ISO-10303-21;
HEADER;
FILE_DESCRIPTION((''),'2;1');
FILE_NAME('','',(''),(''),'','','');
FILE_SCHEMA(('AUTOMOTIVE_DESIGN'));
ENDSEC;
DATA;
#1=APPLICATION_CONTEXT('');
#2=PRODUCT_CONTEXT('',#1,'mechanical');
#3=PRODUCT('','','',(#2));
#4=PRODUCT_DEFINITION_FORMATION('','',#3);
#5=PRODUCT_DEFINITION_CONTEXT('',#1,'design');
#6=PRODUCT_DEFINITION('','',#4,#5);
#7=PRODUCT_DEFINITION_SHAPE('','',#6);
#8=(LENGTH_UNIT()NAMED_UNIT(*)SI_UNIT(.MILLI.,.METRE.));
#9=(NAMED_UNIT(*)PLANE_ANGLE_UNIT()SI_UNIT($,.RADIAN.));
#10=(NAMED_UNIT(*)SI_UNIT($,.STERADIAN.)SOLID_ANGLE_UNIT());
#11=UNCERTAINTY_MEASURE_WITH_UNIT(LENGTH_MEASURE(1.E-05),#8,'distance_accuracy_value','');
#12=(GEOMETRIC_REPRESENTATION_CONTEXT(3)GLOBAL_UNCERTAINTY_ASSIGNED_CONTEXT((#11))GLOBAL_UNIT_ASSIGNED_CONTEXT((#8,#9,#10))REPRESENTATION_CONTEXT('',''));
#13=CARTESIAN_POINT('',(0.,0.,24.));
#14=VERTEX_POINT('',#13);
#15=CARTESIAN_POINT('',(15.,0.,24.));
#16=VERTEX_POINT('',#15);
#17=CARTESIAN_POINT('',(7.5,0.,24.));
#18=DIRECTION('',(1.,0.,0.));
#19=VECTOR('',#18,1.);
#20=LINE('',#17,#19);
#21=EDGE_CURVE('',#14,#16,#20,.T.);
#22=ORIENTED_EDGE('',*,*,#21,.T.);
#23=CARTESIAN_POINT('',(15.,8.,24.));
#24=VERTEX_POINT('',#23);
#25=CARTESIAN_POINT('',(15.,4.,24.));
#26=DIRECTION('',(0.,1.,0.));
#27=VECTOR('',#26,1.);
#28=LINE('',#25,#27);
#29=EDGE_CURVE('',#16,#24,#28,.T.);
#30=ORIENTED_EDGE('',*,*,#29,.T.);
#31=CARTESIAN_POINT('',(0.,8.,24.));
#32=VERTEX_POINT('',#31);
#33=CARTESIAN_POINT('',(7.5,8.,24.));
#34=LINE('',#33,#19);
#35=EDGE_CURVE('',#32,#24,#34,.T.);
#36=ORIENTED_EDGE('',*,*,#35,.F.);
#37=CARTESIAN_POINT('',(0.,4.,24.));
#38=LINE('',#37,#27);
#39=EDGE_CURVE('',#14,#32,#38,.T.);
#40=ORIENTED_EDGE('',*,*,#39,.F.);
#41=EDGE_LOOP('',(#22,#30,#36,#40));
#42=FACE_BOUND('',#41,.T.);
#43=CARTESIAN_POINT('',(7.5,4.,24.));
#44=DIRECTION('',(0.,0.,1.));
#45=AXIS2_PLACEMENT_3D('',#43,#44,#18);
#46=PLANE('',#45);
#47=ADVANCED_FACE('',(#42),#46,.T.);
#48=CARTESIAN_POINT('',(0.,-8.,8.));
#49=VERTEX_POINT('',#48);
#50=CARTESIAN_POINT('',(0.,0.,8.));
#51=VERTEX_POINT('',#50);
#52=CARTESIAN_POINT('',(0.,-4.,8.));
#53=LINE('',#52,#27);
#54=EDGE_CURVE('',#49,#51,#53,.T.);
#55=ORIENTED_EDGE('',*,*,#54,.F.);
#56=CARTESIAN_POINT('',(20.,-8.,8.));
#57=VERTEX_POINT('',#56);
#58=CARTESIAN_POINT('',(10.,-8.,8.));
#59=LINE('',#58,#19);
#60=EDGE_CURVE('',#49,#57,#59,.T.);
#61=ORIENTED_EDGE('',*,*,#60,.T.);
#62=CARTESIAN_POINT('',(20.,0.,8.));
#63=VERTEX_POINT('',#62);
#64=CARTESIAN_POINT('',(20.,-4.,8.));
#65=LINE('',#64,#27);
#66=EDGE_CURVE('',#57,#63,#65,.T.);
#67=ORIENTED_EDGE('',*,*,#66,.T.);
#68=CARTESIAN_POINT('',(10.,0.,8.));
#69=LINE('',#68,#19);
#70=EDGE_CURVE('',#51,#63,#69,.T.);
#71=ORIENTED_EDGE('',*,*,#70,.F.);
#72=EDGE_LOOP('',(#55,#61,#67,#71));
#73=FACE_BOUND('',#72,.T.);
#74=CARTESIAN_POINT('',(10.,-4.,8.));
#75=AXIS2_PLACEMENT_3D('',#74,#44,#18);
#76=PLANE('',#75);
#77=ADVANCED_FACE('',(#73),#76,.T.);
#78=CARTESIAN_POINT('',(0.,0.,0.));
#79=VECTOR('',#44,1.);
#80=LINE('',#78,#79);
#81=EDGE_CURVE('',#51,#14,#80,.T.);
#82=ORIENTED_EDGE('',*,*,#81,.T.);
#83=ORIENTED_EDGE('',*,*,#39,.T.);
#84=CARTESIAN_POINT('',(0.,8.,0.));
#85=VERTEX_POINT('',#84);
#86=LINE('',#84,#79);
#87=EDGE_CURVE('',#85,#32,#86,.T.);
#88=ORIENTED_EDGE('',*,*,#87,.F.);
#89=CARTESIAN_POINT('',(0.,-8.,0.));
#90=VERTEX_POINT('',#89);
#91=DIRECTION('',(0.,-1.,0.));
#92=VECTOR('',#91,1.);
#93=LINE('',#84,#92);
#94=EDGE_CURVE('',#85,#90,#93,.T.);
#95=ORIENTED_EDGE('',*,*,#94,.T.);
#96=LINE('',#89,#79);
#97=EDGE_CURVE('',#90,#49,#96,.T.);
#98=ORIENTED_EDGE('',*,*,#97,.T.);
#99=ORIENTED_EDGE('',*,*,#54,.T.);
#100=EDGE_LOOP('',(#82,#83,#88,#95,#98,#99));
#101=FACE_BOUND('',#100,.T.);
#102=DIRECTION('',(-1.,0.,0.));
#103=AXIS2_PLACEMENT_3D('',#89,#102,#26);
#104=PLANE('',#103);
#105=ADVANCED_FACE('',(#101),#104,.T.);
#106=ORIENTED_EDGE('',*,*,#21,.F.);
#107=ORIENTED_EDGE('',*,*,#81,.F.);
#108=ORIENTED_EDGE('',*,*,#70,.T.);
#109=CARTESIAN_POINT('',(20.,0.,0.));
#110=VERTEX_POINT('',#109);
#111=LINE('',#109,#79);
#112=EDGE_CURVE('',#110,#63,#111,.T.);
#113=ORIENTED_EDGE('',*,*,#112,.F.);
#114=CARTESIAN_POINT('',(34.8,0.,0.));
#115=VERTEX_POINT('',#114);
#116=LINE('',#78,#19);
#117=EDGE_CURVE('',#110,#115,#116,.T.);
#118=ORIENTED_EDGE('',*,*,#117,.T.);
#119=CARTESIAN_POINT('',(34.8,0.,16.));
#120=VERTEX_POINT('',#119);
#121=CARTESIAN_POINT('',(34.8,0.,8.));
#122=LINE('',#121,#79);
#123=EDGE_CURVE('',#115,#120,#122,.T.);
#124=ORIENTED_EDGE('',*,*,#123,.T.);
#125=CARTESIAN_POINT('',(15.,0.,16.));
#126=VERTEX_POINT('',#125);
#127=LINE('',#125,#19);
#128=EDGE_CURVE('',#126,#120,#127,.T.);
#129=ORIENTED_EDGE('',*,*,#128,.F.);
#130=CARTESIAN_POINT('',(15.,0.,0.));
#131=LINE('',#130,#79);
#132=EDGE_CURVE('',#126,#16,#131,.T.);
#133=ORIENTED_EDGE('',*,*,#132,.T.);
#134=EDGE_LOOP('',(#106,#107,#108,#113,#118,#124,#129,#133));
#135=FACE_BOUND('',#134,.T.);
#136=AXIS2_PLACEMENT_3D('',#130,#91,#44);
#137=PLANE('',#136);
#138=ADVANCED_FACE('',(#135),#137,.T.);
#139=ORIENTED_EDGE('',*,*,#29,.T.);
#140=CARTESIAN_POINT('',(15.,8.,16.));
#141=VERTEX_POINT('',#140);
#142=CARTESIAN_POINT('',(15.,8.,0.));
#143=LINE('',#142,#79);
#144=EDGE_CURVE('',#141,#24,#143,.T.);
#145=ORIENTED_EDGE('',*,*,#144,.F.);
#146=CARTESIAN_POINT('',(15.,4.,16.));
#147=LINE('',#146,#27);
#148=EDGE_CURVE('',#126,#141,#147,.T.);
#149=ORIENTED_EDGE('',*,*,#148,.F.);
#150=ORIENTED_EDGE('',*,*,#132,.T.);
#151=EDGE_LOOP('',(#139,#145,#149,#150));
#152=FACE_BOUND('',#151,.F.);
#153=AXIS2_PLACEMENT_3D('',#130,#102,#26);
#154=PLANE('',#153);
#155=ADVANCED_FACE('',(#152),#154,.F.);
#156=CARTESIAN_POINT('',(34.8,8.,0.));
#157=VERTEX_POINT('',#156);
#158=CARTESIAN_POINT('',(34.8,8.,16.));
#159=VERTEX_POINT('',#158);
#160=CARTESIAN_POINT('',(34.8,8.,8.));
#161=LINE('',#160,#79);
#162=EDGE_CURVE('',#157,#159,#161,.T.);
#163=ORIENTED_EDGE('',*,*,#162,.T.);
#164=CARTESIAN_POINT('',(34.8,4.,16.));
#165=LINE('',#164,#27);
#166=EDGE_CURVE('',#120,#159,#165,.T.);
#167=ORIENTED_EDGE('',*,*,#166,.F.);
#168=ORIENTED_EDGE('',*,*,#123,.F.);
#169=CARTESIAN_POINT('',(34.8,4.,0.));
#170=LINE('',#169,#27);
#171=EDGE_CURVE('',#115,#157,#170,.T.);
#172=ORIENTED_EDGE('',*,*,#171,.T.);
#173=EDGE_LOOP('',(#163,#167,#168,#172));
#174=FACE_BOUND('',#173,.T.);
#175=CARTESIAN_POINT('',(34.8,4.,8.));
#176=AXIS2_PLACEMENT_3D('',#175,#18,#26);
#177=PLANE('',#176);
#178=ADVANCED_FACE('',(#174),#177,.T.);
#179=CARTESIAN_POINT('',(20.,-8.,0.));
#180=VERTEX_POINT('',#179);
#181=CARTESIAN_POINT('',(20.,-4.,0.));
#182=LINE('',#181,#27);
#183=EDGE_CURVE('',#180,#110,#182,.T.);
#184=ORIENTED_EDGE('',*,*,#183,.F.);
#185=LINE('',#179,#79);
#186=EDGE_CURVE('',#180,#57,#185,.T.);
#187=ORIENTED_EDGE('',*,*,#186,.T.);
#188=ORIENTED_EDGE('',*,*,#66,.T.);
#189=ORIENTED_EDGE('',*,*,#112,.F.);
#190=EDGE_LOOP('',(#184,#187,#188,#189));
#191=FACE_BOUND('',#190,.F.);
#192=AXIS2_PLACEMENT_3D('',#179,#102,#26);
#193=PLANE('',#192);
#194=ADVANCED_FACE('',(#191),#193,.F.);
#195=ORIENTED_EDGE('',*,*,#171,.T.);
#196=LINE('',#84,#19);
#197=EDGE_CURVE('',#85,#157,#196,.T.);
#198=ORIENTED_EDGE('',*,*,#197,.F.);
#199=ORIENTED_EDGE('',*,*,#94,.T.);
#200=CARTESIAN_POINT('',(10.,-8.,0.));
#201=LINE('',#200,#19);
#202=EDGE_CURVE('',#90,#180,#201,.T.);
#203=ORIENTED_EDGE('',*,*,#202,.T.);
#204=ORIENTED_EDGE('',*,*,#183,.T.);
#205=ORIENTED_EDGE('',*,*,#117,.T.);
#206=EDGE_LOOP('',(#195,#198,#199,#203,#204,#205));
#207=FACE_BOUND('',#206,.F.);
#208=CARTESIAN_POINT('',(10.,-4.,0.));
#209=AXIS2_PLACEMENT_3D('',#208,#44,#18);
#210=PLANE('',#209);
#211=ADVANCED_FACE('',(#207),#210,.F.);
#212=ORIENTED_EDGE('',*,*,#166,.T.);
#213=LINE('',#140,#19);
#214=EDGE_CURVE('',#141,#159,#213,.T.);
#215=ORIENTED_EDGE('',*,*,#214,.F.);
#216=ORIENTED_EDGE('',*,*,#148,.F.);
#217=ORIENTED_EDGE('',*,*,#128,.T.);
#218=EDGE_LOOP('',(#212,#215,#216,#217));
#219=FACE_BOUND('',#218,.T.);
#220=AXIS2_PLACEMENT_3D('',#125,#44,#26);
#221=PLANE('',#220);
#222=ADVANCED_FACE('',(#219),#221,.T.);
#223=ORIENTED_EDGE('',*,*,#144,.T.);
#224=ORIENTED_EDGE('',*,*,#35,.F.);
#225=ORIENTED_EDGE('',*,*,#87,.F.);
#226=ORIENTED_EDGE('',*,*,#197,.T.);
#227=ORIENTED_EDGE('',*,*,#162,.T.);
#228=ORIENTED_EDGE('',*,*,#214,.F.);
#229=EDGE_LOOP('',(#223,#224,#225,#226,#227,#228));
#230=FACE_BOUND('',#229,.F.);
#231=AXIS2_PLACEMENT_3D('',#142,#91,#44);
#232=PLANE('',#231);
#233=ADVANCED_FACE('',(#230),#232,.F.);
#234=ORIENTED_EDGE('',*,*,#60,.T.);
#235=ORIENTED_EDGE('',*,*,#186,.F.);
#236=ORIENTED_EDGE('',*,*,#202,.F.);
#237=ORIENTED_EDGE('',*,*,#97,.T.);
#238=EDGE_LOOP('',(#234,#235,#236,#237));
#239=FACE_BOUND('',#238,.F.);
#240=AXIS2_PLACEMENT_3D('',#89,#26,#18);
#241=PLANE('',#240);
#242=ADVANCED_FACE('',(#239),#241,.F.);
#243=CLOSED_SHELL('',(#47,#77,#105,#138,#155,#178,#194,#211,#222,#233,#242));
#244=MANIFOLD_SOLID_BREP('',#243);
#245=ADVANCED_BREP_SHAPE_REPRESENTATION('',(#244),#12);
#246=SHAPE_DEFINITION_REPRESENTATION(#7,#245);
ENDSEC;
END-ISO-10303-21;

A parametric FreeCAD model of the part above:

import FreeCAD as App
import Part
import Sketcher

V = App.Vector
Q = App.Units.Quantity


def add_polygon(sketch, points):
    """Adds a closed chain of lines whose ends are joined by coincident constraints."""
    first, n = sketch.GeometryCount, len(points)
    for a, b in zip(points, points[1:] + points[:1]):
        sketch.addGeometry(Part.LineSegment(App.Vector(*a, 0), App.Vector(*b, 0)), False)
    for i in range(n):
        sketch.addConstraint(Sketcher.Constraint("Coincident", first + i, 2, first + (i + 1) % n, 1))

doc = App.newDocument("Part")
body = doc.addObject("PartDesign::Body", "Body")

sketch1 = body.newObject("Sketcher::SketchObject", "Sketch")
sketch1.AttachmentSupport = (doc.getObject("XY_Plane"), [""])
sketch1.MapMode = "FlatFace"
add_polygon(sketch1, [(0, 8), (0, 0), (15, 0), (15, 8)])
sketch1.addConstraint(Sketcher.Constraint("Vertical", 0))
sketch1.addConstraint(Sketcher.Constraint("Horizontal", 1))
sketch1.addConstraint(Sketcher.Constraint("Vertical", 2))
sketch1.addConstraint(Sketcher.Constraint("Horizontal", 3))
sketch1.addConstraint(Sketcher.Constraint("Coincident", 0, 2, -1, 1))
sketch1.addConstraint(Sketcher.Constraint("DistanceX", 1, 1, 1, 2, Q("15 mm")))
sketch1.addConstraint(Sketcher.Constraint("DistanceY", 0, 2, 0, 1, Q("8 mm")))
pad1 = body.newObject("PartDesign::Pad", "Pad")
pad1.Profile = sketch1
pad1.Length = 24

sketch2 = body.newObject("Sketcher::SketchObject", "Sketch001")
sketch2.AttachmentSupport = (doc.getObject("YZ_Plane"), [""])
sketch2.MapMode = "FlatFace"
sketch2.AttachmentOffset = App.Placement(V(0, 0, 15), App.Rotation())
add_polygon(sketch2, [(0, 16), (0, 0), (8, 0), (8, 16)])
sketch2.addConstraint(Sketcher.Constraint("Vertical", 0))
sketch2.addConstraint(Sketcher.Constraint("Horizontal", 1))
sketch2.addConstraint(Sketcher.Constraint("Vertical", 2))
sketch2.addConstraint(Sketcher.Constraint("Horizontal", 3))
sketch2.addConstraint(Sketcher.Constraint("Coincident", 0, 2, -1, 1))
sketch2.addConstraint(Sketcher.Constraint("DistanceX", 1, 1, 1, 2, Q("8 mm")))
sketch2.addConstraint(Sketcher.Constraint("DistanceY", 0, 2, 0, 1, Q("16 mm")))
pad2 = body.newObject("PartDesign::Pad", "Pad001")
pad2.Profile = sketch2
pad2.Length = 19.8

sketch3 = body.newObject("Sketcher::SketchObject", "Sketch002")
sketch3.AttachmentSupport = (doc.getObject("XY_Plane"), [""])
sketch3.MapMode = "FlatFace"
add_polygon(sketch3, [(0, 0), (0, -8), (20, -8), (20, 0)])
sketch3.addConstraint(Sketcher.Constraint("Vertical", 0))
sketch3.addConstraint(Sketcher.Constraint("Horizontal", 1))
sketch3.addConstraint(Sketcher.Constraint("Vertical", 2))
sketch3.addConstraint(Sketcher.Constraint("Horizontal", 3))
sketch3.addConstraint(Sketcher.Constraint("Coincident", 3, 2, -1, 1))
sketch3.addConstraint(Sketcher.Constraint("DistanceX", 1, 1, 1, 2, Q("20 mm")))
sketch3.addConstraint(Sketcher.Constraint("DistanceY", 0, 2, 0, 1, Q("8 mm")))
pad3 = body.newObject("PartDesign::Pad", "Pad002")
pad3.Profile = sketch3
pad3.Length = 8

doc.recompute()
